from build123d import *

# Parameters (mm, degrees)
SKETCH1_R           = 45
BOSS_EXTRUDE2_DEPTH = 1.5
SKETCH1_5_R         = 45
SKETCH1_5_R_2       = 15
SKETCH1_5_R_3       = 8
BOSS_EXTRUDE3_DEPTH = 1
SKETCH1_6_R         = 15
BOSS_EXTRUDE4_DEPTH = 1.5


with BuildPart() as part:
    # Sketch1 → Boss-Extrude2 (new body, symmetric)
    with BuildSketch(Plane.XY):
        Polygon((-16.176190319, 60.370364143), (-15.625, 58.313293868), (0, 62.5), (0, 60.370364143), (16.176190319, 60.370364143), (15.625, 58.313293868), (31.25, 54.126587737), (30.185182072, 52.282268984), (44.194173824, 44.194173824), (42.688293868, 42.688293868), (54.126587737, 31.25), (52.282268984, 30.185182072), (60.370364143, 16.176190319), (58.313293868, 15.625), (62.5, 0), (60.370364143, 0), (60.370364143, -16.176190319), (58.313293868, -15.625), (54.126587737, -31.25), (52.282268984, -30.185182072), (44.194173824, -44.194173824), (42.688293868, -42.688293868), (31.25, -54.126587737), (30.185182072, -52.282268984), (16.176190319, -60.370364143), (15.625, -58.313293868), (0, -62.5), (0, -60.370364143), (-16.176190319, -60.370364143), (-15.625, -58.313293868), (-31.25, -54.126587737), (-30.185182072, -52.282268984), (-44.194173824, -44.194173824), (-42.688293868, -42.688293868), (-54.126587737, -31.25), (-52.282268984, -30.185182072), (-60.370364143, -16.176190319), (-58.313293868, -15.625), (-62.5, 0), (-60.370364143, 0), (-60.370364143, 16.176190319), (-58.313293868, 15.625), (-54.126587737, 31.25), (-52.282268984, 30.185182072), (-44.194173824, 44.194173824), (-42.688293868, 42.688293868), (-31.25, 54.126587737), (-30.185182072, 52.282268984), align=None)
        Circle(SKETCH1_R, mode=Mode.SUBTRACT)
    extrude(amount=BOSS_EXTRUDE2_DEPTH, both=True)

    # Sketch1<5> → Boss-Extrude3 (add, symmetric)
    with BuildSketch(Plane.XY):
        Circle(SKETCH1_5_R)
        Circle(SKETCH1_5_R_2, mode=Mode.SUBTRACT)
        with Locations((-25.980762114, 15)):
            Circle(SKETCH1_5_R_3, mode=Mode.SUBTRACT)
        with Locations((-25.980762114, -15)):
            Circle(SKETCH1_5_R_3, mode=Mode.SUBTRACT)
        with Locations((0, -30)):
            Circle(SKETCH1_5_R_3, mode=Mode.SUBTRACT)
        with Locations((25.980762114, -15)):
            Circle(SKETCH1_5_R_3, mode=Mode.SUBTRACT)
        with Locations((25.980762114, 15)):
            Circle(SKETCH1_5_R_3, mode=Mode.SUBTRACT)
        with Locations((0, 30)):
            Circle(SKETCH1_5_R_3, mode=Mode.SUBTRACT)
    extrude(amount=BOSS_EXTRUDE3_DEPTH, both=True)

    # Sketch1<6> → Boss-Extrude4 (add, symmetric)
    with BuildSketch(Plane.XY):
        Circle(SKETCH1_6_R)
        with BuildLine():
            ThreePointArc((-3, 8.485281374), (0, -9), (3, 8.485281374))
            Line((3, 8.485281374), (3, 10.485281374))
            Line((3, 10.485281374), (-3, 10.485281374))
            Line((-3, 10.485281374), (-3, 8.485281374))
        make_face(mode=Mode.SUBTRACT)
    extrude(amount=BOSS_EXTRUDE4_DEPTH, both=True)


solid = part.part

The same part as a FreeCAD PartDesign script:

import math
import FreeCAD as App
import Part
import Sketcher
Q = App.Units.Quantity

doc = App.newDocument("Part")
body = doc.addObject("PartDesign::Body", "Body")

sketch1 = body.newObject("Sketcher::SketchObject", "Sketch")
sketch1.AttachmentSupport = (doc.getObject("XY_Plane"), [""])
sketch1.MapMode = "FlatFace"
sketch1.addGeometry([
    Part.LineSegment(App.Vector(-15.625, 58.313294, 0), App.Vector(-16.17619, 60.370364, 0)),
    Part.LineSegment(App.Vector(-16.17619, 60.370364, 0), App.Vector(-30.185182, 52.282269, 0)),
    Part.LineSegment(App.Vector(-30.185182, 52.282269, 0), App.Vector(-31.25, 54.126588, 0)),
    Part.LineSegment(App.Vector(-31.25, 54.126588, 0), App.Vector(-42.688294, 42.688294, 0)),
    Part.LineSegment(App.Vector(-42.688294, 42.688294, 0), App.Vector(-44.194174, 44.194174, 0)),
    Part.LineSegment(App.Vector(-44.194174, 44.194174, 0), App.Vector(-52.282269, 30.185182, 0)),
    Part.LineSegment(App.Vector(-52.282269, 30.185182, 0), App.Vector(-54.126588, 31.25, 0)),
    Part.LineSegment(App.Vector(-54.126588, 31.25, 0), App.Vector(-58.313294, 15.625, 0)),
    Part.LineSegment(App.Vector(-58.313294, 15.625, 0), App.Vector(-60.370364, 16.17619, 0)),
    Part.LineSegment(App.Vector(-60.370364, 16.17619, 0), App.Vector(-60.370364, 0, 0)),
    Part.LineSegment(App.Vector(-60.370364, 0, 0), App.Vector(-62.5, 0, 0)),
    Part.LineSegment(App.Vector(-62.5, 0, 0), App.Vector(-58.313294, -15.625, 0)),
    Part.LineSegment(App.Vector(-58.313294, -15.625, 0), App.Vector(-60.370364, -16.17619, 0)),
    Part.LineSegment(App.Vector(-60.370364, -16.17619, 0), App.Vector(-52.282269, -30.185182, 0)),
    Part.LineSegment(App.Vector(-52.282269, -30.185182, 0), App.Vector(-54.126588, -31.25, 0)),
    Part.LineSegment(App.Vector(-54.126588, -31.25, 0), App.Vector(-42.688294, -42.688294, 0)),
    Part.LineSegment(App.Vector(-42.688294, -42.688294, 0), App.Vector(-44.194174, -44.194174, 0)),
    Part.LineSegment(App.Vector(-44.194174, -44.194174, 0), App.Vector(-30.185182, -52.282269, 0)),
    Part.LineSegment(App.Vector(-30.185182, -52.282269, 0), App.Vector(-31.25, -54.126588, 0)),
    Part.LineSegment(App.Vector(-31.25, -54.126588, 0), App.Vector(-15.625, -58.313294, 0)),
    Part.LineSegment(App.Vector(-15.625, -58.313294, 0), App.Vector(-16.17619, -60.370364, 0)),
    Part.LineSegment(App.Vector(-16.17619, -60.370364, 0), App.Vector(0, -60.370364, 0)),
    Part.LineSegment(App.Vector(0, -60.370364, 0), App.Vector(0, -62.5, 0)),
    Part.LineSegment(App.Vector(0, -62.5, 0), App.Vector(15.625, -58.313294, 0)),
    Part.LineSegment(App.Vector(15.625, -58.313294, 0), App.Vector(16.17619, -60.370364, 0)),
    Part.LineSegment(App.Vector(16.17619, -60.370364, 0), App.Vector(30.185182, -52.282269, 0)),
    Part.LineSegment(App.Vector(30.185182, -52.282269, 0), App.Vector(31.25, -54.126588, 0)),
    Part.LineSegment(App.Vector(31.25, -54.126588, 0), App.Vector(42.688294, -42.688294, 0)),
    Part.LineSegment(App.Vector(42.688294, -42.688294, 0), App.Vector(44.194174, -44.194174, 0)),
    Part.LineSegment(App.Vector(44.194174, -44.194174, 0), App.Vector(52.282269, -30.185182, 0)),
    Part.LineSegment(App.Vector(52.282269, -30.185182, 0), App.Vector(54.126588, -31.25, 0)),
    Part.LineSegment(App.Vector(54.126588, -31.25, 0), App.Vector(58.313294, -15.625, 0)),
    Part.LineSegment(App.Vector(58.313294, -15.625, 0), App.Vector(60.370364, -16.17619, 0)),
    Part.LineSegment(App.Vector(60.370364, -16.17619, 0), App.Vector(60.370364, 0, 0)),
    Part.LineSegment(App.Vector(60.370364, 0, 0), App.Vector(62.5, 0, 0)),
    Part.LineSegment(App.Vector(62.5, 0, 0), App.Vector(58.313294, 15.625, 0)),
    Part.LineSegment(App.Vector(58.313294, 15.625, 0), App.Vector(60.370364, 16.17619, 0)),
    Part.LineSegment(App.Vector(60.370364, 16.17619, 0), App.Vector(52.282269, 30.185182, 0)),
    Part.LineSegment(App.Vector(52.282269, 30.185182, 0), App.Vector(54.126588, 31.25, 0)),
    Part.LineSegment(App.Vector(54.126588, 31.25, 0), App.Vector(42.688294, 42.688294, 0)),
    Part.LineSegment(App.Vector(42.688294, 42.688294, 0), App.Vector(44.194174, 44.194174, 0)),
    Part.LineSegment(App.Vector(44.194174, 44.194174, 0), App.Vector(30.185182, 52.282269, 0)),
    Part.LineSegment(App.Vector(30.185182, 52.282269, 0), App.Vector(31.25, 54.126588, 0)),
    Part.LineSegment(App.Vector(31.25, 54.126588, 0), App.Vector(15.625, 58.313294, 0)),
    Part.LineSegment(App.Vector(15.625, 58.313294, 0), App.Vector(16.17619, 60.370364, 0)),
    Part.LineSegment(App.Vector(16.17619, 60.370364, 0), App.Vector(0, 60.370364, 0)),
    Part.LineSegment(App.Vector(0, 60.370364, 0), App.Vector(0, 62.5, 0)),
    Part.LineSegment(App.Vector(0, 62.5, 0), App.Vector(-15.625, 58.313294, 0)),
    Part.Circle(App.Vector(0, 0, 0), App.Vector(0, 0, 1), 45),
], False)
sketch1.addConstraint([
    Sketcher.Constraint("Coincident", 0, 2, 1, 1),
    Sketcher.Constraint("Coincident", 1, 2, 2, 1),
    Sketcher.Constraint("Coincident", 2, 2, 3, 1),
    Sketcher.Constraint("Coincident", 3, 2, 4, 1),
    Sketcher.Constraint("Coincident", 4, 2, 5, 1),
    Sketcher.Constraint("Coincident", 5, 2, 6, 1),
    Sketcher.Constraint("Coincident", 6, 2, 7, 1),
    Sketcher.Constraint("Coincident", 7, 2, 8, 1),
    Sketcher.Constraint("Coincident", 8, 2, 9, 1),
    Sketcher.Constraint("Coincident", 9, 2, 10, 1),
    Sketcher.Constraint("Coincident", 10, 2, 11, 1),
    Sketcher.Constraint("Coincident", 11, 2, 12, 1),
    Sketcher.Constraint("Coincident", 12, 2, 13, 1),
    Sketcher.Constraint("Coincident", 13, 2, 14, 1),
    Sketcher.Constraint("Coincident", 14, 2, 15, 1),
    Sketcher.Constraint("Coincident", 15, 2, 16, 1),
    Sketcher.Constraint("Coincident", 16, 2, 17, 1),
    Sketcher.Constraint("Coincident", 17, 2, 18, 1),
    Sketcher.Constraint("Coincident", 18, 2, 19, 1),
    Sketcher.Constraint("Coincident", 19, 2, 20, 1),
    Sketcher.Constraint("Coincident", 20, 2, 21, 1),
    Sketcher.Constraint("Coincident", 21, 2, 22, 1),
    Sketcher.Constraint("Coincident", 22, 2, 23, 1),
    Sketcher.Constraint("Coincident", 23, 2, 24, 1),
    Sketcher.Constraint("Coincident", 24, 2, 25, 1),
    Sketcher.Constraint("Coincident", 25, 2, 26, 1),
    Sketcher.Constraint("Coincident", 26, 2, 27, 1),
    Sketcher.Constraint("Coincident", 27, 2, 28, 1),
    Sketcher.Constraint("Coincident", 28, 2, 29, 1),
    Sketcher.Constraint("Coincident", 29, 2, 30, 1),
    Sketcher.Constraint("Coincident", 30, 2, 31, 1),
    Sketcher.Constraint("Coincident", 31, 2, 32, 1),
    Sketcher.Constraint("Coincident", 32, 2, 33, 1),
    Sketcher.Constraint("Coincident", 33, 2, 34, 1),
    Sketcher.Constraint("Coincident", 34, 2, 35, 1),
    Sketcher.Constraint("Coincident", 35, 2, 36, 1),
    Sketcher.Constraint("Coincident", 36, 2, 37, 1),
    Sketcher.Constraint("Coincident", 37, 2, 38, 1),
    Sketcher.Constraint("Coincident", 38, 2, 39, 1),
    Sketcher.Constraint("Coincident", 39, 2, 40, 1),
    Sketcher.Constraint("Coincident", 40, 2, 41, 1),
    Sketcher.Constraint("Coincident", 41, 2, 42, 1),
    Sketcher.Constraint("Coincident", 42, 2, 43, 1),
    Sketcher.Constraint("Coincident", 43, 2, 44, 1),
    Sketcher.Constraint("Coincident", 44, 2, 45, 1),
    Sketcher.Constraint("Coincident", 45, 2, 46, 1),
    Sketcher.Constraint("Coincident", 46, 2, 47, 1),
    Sketcher.Constraint("Coincident", 47, 2, 0, 1),
    Sketcher.Constraint("Vertical", 9),
    Sketcher.Constraint("Horizontal", 10),
    Sketcher.Constraint("Horizontal", 21),
    Sketcher.Constraint("Vertical", 22),
    Sketcher.Constraint("Vertical", 33),
    Sketcher.Constraint("Horizontal", 34),
    Sketcher.Constraint("Horizontal", 45),
    Sketcher.Constraint("Vertical", 46),
    Sketcher.Constraint("Coincident", 48, 3, -1, 1),
    Sketcher.Constraint("Symmetric", 0, 2, 24, 2, -1, 1),
    Sketcher.Constraint("Symmetric", 1, 2, 25, 2, -1, 1),
    Sketcher.Constraint("Symmetric", 2, 2, 26, 2, -1, 1),
    Sketcher.Constraint("Symmetric", 3, 2, 27, 2, -1, 1),
    Sketcher.Constraint("Symmetric", 4, 2, 28, 2, -1, 1),
    Sketcher.Constraint("Symmetric", 5, 2, 29, 2, -1, 1),
    Sketcher.Constraint("Symmetric", 6, 2, 30, 2, -1, 1),
    Sketcher.Constraint("Symmetric", 7, 2, 31, 2, -1, 1),
    Sketcher.Constraint("Symmetric", 8, 2, 32, 2, -1, 1),
    Sketcher.Constraint("Symmetric", 10, 2, 34, 2, -1, 1),
    Sketcher.Constraint("Symmetric", 11, 2, 35, 2, -1, 1),
    Sketcher.Constraint("Symmetric", 12, 2, 36, 2, -1, 1),
    Sketcher.Constraint("Symmetric", 13, 2, 37, 2, -1, 1),
    Sketcher.Constraint("Symmetric", 14, 2, 38, 2, -1, 1),
    Sketcher.Constraint("Symmetric", 15, 2, 39, 2, -1, 1),
    Sketcher.Constraint("Symmetric", 16, 2, 40, 2, -1, 1),
    Sketcher.Constraint("Symmetric", 17, 2, 41, 2, -1, 1),
    Sketcher.Constraint("Symmetric", 18, 2, 42, 2, -1, 1),
    Sketcher.Constraint("Symmetric", 19, 2, 43, 2, -1, 1),
    Sketcher.Constraint("Symmetric", 20, 2, 44, 2, -1, 1),
    Sketcher.Constraint("Symmetric", 22, 2, 46, 2, -1, 1),
    Sketcher.Constraint("Symmetric", 23, 2, 47, 2, -1, 1),
    Sketcher.Constraint("Symmetric", 19, 2, 23, 2, -2),
    Sketcher.Constraint("Symmetric", 20, 2, 24, 2, -2),
    Sketcher.Constraint("Symmetric", 17, 2, 25, 2, -2),
    Sketcher.Constraint("Symmetric", 18, 2, 26, 2, -2),
    Sketcher.Constraint("Symmetric", 15, 2, 27, 2, -2),
    Sketcher.Constraint("Symmetric", 16, 2, 28, 2, -2),
    Sketcher.Constraint("Symmetric", 13, 2, 29, 2, -2),
    Sketcher.Constraint("Symmetric", 14, 2, 30, 2, -2),
    Sketcher.Constraint("Symmetric", 11, 2, 31, 2, -2),
    Sketcher.Constraint("Symmetric", 12, 2, 32, 2, -2),
    Sketcher.Constraint("PointOnObject", 9, 2, -1),
    Sketcher.Constraint("PointOnObject", 21, 2, -2),
    Sketcher.Constraint("Perpendicular", 1, 2),
    Sketcher.Constraint("Perpendicular", 3, 4),
    Sketcher.Constraint("Perpendicular", 5, 6),
    Sketcher.Constraint("Perpendicular", 7, 8),
    Sketcher.Constraint("Parallel", 0, 11),
    Sketcher.Constraint("Perpendicular", 11, 12),
    Sketcher.Constraint("Parallel", 2, 13),
    Sketcher.Constraint("Perpendicular", 13, 14),
    Sketcher.Constraint("Parallel", 4, 15),
    Sketcher.Constraint("Perpendicular", 15, 16),
    Sketcher.Constraint("Parallel", 6, 17),
    Sketcher.Constraint("Parallel", 8, 19),
    Sketcher.Constraint("Parallel", 12, 23),
    Sketcher.Constraint("Equal", 45, 9),
    Sketcher.Constraint("Equal", 34, 22),
    Sketcher.Constraint("Equal", 0, 2),
    Sketcher.Constraint("Equal", 1, 3),
    Sketcher.Constraint("Equal", 2, 4),
    Sketcher.Constraint("Equal", 3, 5),
    Sketcher.Constraint("Equal", 7, 11),
    Sketcher.Constraint("Diameter", 48, 90.0),
    Sketcher.Constraint("Angle", 0, Q("105 deg")),
    Sketcher.Constraint("DistanceX", 10, 2, -1, 1, 62.5),
])
pad1 = body.newObject("PartDesign::Pad", "Pad")
pad1.Profile = sketch1
pad1.Length = 3
pad1.Midplane = True

sketch2 = body.newObject("Sketcher::SketchObject", "Sketch001")
sketch2.AttachmentSupport = (doc.getObject("XY_Plane"), [""])
sketch2.MapMode = "FlatFace"
sketch2.addGeometry([
    Part.Circle(App.Vector(0, 0, 0), App.Vector(0, 0, 1), 45),
    Part.Circle(App.Vector(-25.980762, -15, 0), App.Vector(0, 0, 1), 8),
    Part.Circle(App.Vector(0, -30, 0), App.Vector(0, 0, 1), 8),
    Part.Circle(App.Vector(25.980762, -15, 0), App.Vector(0, 0, 1), 8),
    Part.Circle(App.Vector(-25.980762, 15, 0), App.Vector(0, 0, 1), 8),
    Part.Circle(App.Vector(0, 0, 0), App.Vector(0, 0, 1), 15),
    Part.Circle(App.Vector(25.980762, 15, 0), App.Vector(0, 0, 1), 8),
    Part.Circle(App.Vector(0, 30, 0), App.Vector(0, 0, 1), 8),
], False)
sketch2.addConstraint([
    Sketcher.Constraint("Coincident", 0, 3, -1, 1),
    Sketcher.Constraint("Coincident", 5, 3, -1, 1),
    Sketcher.Constraint("Equal", 1, 2),
    Sketcher.Constraint("Equal", 2, 3),
    Sketcher.Constraint("Equal", 3, 4),
    Sketcher.Constraint("Equal", 4, 6),
    Sketcher.Constraint("Equal", 6, 7),
    Sketcher.Constraint("Symmetric", 3, 3, 4, 3, -1, 1),
    Sketcher.Constraint("Symmetric", 1, 3, 6, 3, -1, 1),
    Sketcher.Constraint("Symmetric", 2, 3, 7, 3, -1, 1),
    Sketcher.Constraint("Symmetric", 1, 3, 3, 3, -2),
    Sketcher.Constraint("PointOnObject", 2, 3, -2),
    Sketcher.Constraint("Diameter", 0, 90.0),
    Sketcher.Constraint("Diameter", 1, 16.0),
    Sketcher.Constraint("Diameter", 5, 30.0),
    Sketcher.Constraint("DistanceY", 1, 3, -1, 1, 15.0),
    Sketcher.Constraint("DistanceY", 2, 3, -1, 1, 30.0),
    Sketcher.Constraint("DistanceX", 1, 3, -1, 1, 25.980762),
])
pad2 = body.newObject("PartDesign::Pad", "Pad001")
pad2.Profile = sketch2
pad2.Length = 2
pad2.Midplane = True

sketch3 = body.newObject("Sketcher::SketchObject", "Sketch002")
sketch3.AttachmentSupport = (doc.getObject("XY_Plane"), [""])
sketch3.MapMode = "FlatFace"
sketch3.addGeometry([
    Part.Circle(App.Vector(0, 0, 0), App.Vector(0, 0, 1), 15),
    Part.ArcOfCircle(Part.Circle(App.Vector(0, 0, 0), App.Vector(0, 0, 1), 9), math.radians(109.471221), math.radians(430.528779)),
    Part.LineSegment(App.Vector(-3, 8.485281, 0), App.Vector(-3, 10.485281, 0)),
    Part.LineSegment(App.Vector(-3, 10.485281, 0), App.Vector(3, 10.485281, 0)),
    Part.LineSegment(App.Vector(3, 10.485281, 0), App.Vector(3, 8.485281, 0)),
], False)
sketch3.addConstraint([
    Sketcher.Constraint("Coincident", 1, 1, 2, 1),
    Sketcher.Constraint("Coincident", 2, 2, 3, 1),
    Sketcher.Constraint("Coincident", 3, 2, 4, 1),
    Sketcher.Constraint("Coincident", 4, 2, 1, 2),
    Sketcher.Constraint("Vertical", 2),
    Sketcher.Constraint("Horizontal", 3),
    Sketcher.Constraint("Vertical", 4),
    Sketcher.Constraint("Coincident", 0, 3, -1, 1),
    Sketcher.Constraint("Coincident", 1, 3, -1, 1),
    Sketcher.Constraint("Horizontal", 1, 1, 4, 2),
    Sketcher.Constraint("Diameter", 0, 30.0),
    Sketcher.Constraint("Radius", 1, 9.0),
    Sketcher.Constraint("DistanceX", 3, 1, 3, 2, 6.0),
    Sketcher.Constraint("DistanceY", 2, 1, 2, 2, 2.0),
])
pad3 = body.newObject("PartDesign::Pad", "Pad002")
pad3.Profile = sketch3
pad3.Length = 3
pad3.Midplane = True

doc.recompute()
